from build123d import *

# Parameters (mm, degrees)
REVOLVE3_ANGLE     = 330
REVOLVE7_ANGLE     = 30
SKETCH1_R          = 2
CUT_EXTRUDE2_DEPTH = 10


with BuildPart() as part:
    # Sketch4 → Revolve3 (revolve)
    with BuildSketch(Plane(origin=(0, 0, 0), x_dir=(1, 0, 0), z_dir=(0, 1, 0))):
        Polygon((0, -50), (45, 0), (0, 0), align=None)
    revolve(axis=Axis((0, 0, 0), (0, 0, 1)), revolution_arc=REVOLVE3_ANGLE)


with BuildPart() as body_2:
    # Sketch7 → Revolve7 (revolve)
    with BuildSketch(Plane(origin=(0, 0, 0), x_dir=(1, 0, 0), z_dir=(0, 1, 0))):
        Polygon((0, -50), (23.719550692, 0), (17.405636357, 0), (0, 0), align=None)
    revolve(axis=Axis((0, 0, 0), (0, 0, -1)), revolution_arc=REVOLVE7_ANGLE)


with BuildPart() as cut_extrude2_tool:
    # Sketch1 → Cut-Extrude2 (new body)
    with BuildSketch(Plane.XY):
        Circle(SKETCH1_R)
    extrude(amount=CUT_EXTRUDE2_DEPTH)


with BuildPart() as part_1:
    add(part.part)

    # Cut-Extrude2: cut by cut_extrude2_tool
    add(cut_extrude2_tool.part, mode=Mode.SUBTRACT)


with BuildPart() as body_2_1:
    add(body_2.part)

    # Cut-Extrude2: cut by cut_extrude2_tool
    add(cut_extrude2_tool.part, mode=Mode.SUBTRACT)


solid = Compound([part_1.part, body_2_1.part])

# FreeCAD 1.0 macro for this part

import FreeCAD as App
import Part
import Sketcher

doc = App.newDocument("Part")
body = doc.addObject("PartDesign::Body", "Body")

# Sketch on XZ plane
sketch1 = doc.addObject("Sketcher::SketchObject", "Sketch")
body.addObject(sketch1)
sketch1.AttachmentSupport = (doc.XZ_Plane, [""])
sketch1.MapMode = "FlatFace"
sketch1.addGeometry([
    Part.LineSegment(App.Vector(0, 50, 0), App.Vector(45, 0, 0)),
    Part.LineSegment(App.Vector(45, 0, 0), App.Vector(0, 0, 0)),
    Part.LineSegment(App.Vector(0, 0, 0), App.Vector(0, 50, 0)),
], False)
sketch1.addConstraint([
    Sketcher.Constraint("Coincident", 0, 2, 1, 1),
    Sketcher.Constraint("Coincident", 1, 2, 2, 1),
    Sketcher.Constraint("Coincident", 2, 2, 0, 1),
    Sketcher.Constraint("Horizontal", 1),
    Sketcher.Constraint("Vertical", 2),
    Sketcher.Constraint("Coincident", 1, 2, -1, 1),
    Sketcher.Constraint("DistanceX", 1, 2, 1, 1, 45.0),
    Sketcher.Constraint("DistanceY", 2, 1, 2, 2, 50.0),
])
revolution = doc.addObject("PartDesign::Revolution", "Revolution")
body.addObject(revolution)
revolution.Profile = sketch1
revolution.ReferenceAxis = (sketch1, ["V_Axis"])
revolution.Angle = 330
body2 = doc.addObject("PartDesign::Body", "Body001")

# Sketch on XZ plane
sketch2 = doc.addObject("Sketcher::SketchObject", "Sketch001")
body2.addObject(sketch2)
sketch2.AttachmentSupport = (doc.getObject("XZ_Plane001"), [""])
sketch2.MapMode = "FlatFace"
sketch2.addGeometry([
    Part.LineSegment(App.Vector(0, 50, 0), App.Vector(24, 0, 0)),
    Part.LineSegment(App.Vector(24, 0, 0), App.Vector(0, 0, 0)),
    Part.LineSegment(App.Vector(0, 0, 0), App.Vector(0, 50, 0)),
], False)
sketch2.addConstraint([
    Sketcher.Constraint("Coincident", 0, 2, 1, 1),
    Sketcher.Constraint("Coincident", 1, 2, 2, 1),
    Sketcher.Constraint("Coincident", 2, 2, 0, 1),
    Sketcher.Constraint("Horizontal", 1),
    Sketcher.Constraint("Vertical", 2),
    Sketcher.Constraint("Coincident", 1, 2, -1, 1),
    Sketcher.Constraint("DistanceY", 2, 1, 2, 2, 50.0),
    Sketcher.Constraint("DistanceX", 1, 2, 1, 1, 23.719551),
])
revolution2 = doc.addObject("PartDesign::Revolution", "Revolution001")
body2.addObject(revolution2)
revolution2.Profile = sketch2
revolution2.ReferenceAxis = (sketch2, ["V_Axis"])
revolution2.Angle = 30
revolution2.Reversed = True
body3 = doc.addObject("PartDesign::Body", "Body002")

# Sketch on XY plane
sketch3 = doc.addObject("Sketcher::SketchObject", "Sketch002")
body3.addObject(sketch3)
sketch3.AttachmentSupport = (doc.getObject("XY_Plane002"), [""])
sketch3.MapMode = "FlatFace"
sketch3.addGeometry(Part.Circle(App.Vector(0, 0, 0), App.Vector(0, 0, 1), 2), False)
sketch3.addConstraint([
    Sketcher.Constraint("Coincident", 0, 3, -1, 1),
    Sketcher.Constraint("Diameter", 0, 4.0),
])
pad1 = doc.addObject("PartDesign::Pad", "Pad")
body3.addObject(pad1)
pad1.Profile = sketch3
pad1.Length = 10
doc.recompute()

body4 = doc.addObject("PartDesign::Body", "Body003")
body4.BaseFeature = body3
boolean = doc.addObject("PartDesign::Boolean", "Boolean")
body.addObject(boolean)
boolean.Type = "Cut"
boolean.addObjects([body4])
doc.recompute()

boolean2 = doc.addObject("PartDesign::Boolean", "Boolean001")
body2.addObject(boolean2)
boolean2.Type = "Cut"
boolean2.addObjects([body3])

doc.recompute()
